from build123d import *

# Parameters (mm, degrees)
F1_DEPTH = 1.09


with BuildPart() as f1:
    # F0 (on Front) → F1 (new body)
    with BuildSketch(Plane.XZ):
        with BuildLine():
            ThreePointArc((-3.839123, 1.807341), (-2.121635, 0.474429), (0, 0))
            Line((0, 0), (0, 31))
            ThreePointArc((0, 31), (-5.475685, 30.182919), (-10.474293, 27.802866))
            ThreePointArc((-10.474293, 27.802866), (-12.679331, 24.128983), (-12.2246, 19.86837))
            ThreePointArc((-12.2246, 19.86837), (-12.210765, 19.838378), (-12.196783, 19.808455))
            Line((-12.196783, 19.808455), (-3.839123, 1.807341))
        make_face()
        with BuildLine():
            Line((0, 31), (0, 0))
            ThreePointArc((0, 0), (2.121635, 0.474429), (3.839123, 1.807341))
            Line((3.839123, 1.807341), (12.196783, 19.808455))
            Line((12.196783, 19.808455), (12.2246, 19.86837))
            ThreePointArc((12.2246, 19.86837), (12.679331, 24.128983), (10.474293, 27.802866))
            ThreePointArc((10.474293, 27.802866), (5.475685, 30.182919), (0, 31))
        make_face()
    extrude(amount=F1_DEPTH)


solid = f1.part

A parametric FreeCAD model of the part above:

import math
import FreeCAD as App
import Part
import Sketcher

V = App.Vector

doc = App.newDocument("Part")
params = doc.addObject("Spreadsheet::Sheet", "Params")
for row, (alias, value) in enumerate([
    ("pad1_length", "1.09 mm"),
], start=1):
    params.set(f"A{row}", alias)
    params.set(f"B{row}", "=" + value)
    params.setAlias(f"B{row}", alias)

body = doc.addObject("PartDesign::Body", "Body")

sketch1 = doc.addObject("Sketcher::SketchObject", "Sketch")
body.addObject(sketch1)
sketch1.AttachmentSupport = (doc.XZ_Plane, [""])
sketch1.MapMode = "FlatFace"
sketch1.addGeometry([
    Part.ArcOfCircle(Part.Circle(V(0.000002, 4.981176, 0), V(0, 0, 1), 4.981176), math.radians(-140.419199), math.radians(-90.000028)),
    Part.ArcOfCircle(Part.Circle(V(-0.000002, 4.981176, 0), V(0, 0, 1), 4.981176), math.radians(-89.999972), math.radians(-39.580801)),
    Part.LineSegment(V(3.839123, 1.807341, 0), V(12.196783, 19.808455, 0)),
    Part.LineSegment(V(12.196783, 19.808455, 0), V(12.2246, 19.86837, 0)),
    Part.ArcOfCircle(Part.Circle(V(6.096936, 22.676943, 0), V(0, 0, 1), 6.740649), math.radians(-24.624027), math.radians(49.503847)),
    Part.ArcOfCircle(Part.Circle(V(0, 12.243751, 0), V(0, 0, 1), 18.756249), math.radians(56.051821), math.radians(89.999999)),
    Part.ArcOfCircle(Part.Circle(V(0, 12.243751, 0), V(0, 0, 1), 18.756249), math.radians(90.000001), math.radians(123.948179)),
    Part.ArcOfCircle(Part.Circle(V(-6.096936, 22.676943, 0), V(0, 0, 1), 6.740649), math.radians(130.496153), math.radians(204.624027)),
    Part.ArcOfCircle(Part.Circle(V(-6.117514, 22.667319, 0), V(0, 0, 1), 6.717932), math.radians(-155.377461), math.radians(-154.814069)),
    Part.LineSegment(V(-12.196783, 19.808455, 0), V(-3.839123, 1.807341, 0)),
], False)
sketch1.addConstraint([
    Sketcher.Constraint("Coincident", 0, 2, 1, 1),
    Sketcher.Constraint("Coincident", 1, 2, 2, 1),
    Sketcher.Constraint("Coincident", 2, 2, 3, 1),
    Sketcher.Constraint("Coincident", 3, 2, 4, 1),
    Sketcher.Constraint("Coincident", 4, 2, 5, 1),
    Sketcher.Constraint("Coincident", 5, 2, 6, 1),
    Sketcher.Constraint("Coincident", 6, 2, 7, 1),
    Sketcher.Constraint("Coincident", 7, 2, 8, 1),
    Sketcher.Constraint("Coincident", 8, 2, 9, 1),
    Sketcher.Constraint("Coincident", 9, 2, 0, 1),
    Sketcher.Constraint("Coincident", 0, 2, -1, 1),
    Sketcher.Constraint("Coincident", 1, 3, 0, 3),
    Sketcher.Constraint("Coincident", 6, 3, 5, 3),
    Sketcher.Constraint("PointOnObject", 5, 3, -2),
    Sketcher.Constraint("PointOnObject", 5, 2, -2),
    Sketcher.Constraint("DistanceY", -1, 1, 5, 2, 31.0),
    Sketcher.Constraint("Radius", 4, 6.740649),
    Sketcher.Constraint("Radius", 5, 18.756249),
    Sketcher.Constraint("Radius", 7, 6.740649),
    Sketcher.Constraint("Radius", 0, 4.981176),
    Sketcher.Constraint("Radius", 8, 6.717932),
    Sketcher.Constraint("DistanceX", -1, 1, 3, 2, 12.2246),
    Sketcher.Constraint("DistanceX", 7, 2, -1, 1, 12.2246),
    Sketcher.Constraint("DistanceY", -1, 1, 8, 3, 22.667319),
    Sketcher.Constraint("DistanceY", -1, 1, 1, 2, 1.807341),
    Sketcher.Constraint("DistanceY", -1, 1, 3, 2, 19.86837),
    Sketcher.Constraint("DistanceY", -1, 1, 7, 2, 19.86837),
    Sketcher.Constraint("DistanceY", -1, 1, 9, 2, 1.807341),
    Sketcher.Constraint("DistanceX", 1, 3, 4, 3, 6.096938),
    Sketcher.Constraint("DistanceY", 5, 3, 4, 3, 10.433192),
    Sketcher.Constraint("DistanceY", 5, 3, 7, 3, 10.433192),
    Sketcher.Constraint("DistanceX", 7, 3, 2, 2, 18.293719),
    Sketcher.Constraint("DistanceY", 2, 2, 4, 2, 7.994411),
    Sketcher.Constraint("DistanceX", 8, 2, 8, 3, 6.079269),
])
pad1 = doc.addObject("PartDesign::Pad", "Pad")
body.addObject(pad1)
pad1.Profile = sketch1
pad1.setExpression("Length", "Params.pad1_length")

doc.recompute()
